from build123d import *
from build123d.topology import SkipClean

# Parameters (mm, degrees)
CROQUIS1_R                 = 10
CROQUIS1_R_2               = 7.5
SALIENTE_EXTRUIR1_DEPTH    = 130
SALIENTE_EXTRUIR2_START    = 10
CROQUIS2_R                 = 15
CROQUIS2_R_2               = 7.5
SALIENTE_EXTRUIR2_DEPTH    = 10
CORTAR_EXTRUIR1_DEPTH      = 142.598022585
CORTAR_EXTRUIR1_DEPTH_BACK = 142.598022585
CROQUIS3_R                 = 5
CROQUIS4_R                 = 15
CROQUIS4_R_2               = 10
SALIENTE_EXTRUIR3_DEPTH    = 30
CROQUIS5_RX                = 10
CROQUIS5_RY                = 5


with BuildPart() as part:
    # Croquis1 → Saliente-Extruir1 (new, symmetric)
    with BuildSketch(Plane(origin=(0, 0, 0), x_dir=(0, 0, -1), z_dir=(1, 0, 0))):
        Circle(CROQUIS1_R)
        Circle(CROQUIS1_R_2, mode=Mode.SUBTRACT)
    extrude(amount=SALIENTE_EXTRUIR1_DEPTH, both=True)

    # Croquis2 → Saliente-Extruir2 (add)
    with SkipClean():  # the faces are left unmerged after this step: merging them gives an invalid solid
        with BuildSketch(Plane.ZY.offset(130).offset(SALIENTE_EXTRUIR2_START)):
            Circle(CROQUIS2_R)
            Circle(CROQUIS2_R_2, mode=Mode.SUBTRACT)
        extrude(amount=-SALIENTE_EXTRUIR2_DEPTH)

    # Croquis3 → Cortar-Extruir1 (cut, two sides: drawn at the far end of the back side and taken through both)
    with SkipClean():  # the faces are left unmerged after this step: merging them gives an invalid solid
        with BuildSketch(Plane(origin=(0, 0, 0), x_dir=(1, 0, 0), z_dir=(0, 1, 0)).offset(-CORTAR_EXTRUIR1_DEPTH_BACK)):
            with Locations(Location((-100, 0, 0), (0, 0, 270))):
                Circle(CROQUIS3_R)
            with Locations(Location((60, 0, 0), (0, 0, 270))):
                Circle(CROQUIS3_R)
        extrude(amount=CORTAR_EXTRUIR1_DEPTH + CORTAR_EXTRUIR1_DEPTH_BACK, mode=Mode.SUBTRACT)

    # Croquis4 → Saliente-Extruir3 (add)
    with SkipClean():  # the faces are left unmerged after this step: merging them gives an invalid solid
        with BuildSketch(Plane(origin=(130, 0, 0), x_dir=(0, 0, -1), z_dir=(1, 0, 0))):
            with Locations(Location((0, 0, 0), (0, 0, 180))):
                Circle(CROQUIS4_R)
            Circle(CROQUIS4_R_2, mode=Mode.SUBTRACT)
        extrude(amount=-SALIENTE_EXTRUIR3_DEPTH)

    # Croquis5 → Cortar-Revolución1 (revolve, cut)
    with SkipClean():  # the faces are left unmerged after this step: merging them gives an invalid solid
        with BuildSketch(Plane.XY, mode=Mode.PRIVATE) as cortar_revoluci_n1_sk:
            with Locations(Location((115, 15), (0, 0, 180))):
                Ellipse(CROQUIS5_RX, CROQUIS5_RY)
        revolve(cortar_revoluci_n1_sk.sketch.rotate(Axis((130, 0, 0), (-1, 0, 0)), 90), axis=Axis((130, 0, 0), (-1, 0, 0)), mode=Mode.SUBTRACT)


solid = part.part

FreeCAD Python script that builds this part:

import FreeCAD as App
import Part
import Sketcher
from FreeCAD import Vector
Q = App.Units.Quantity

doc = App.newDocument("Part")
params = doc.addObject("Spreadsheet::Sheet", "Params")
for row, (alias, value) in enumerate([
    ("sketch1_diameter", "20 mm"),
    ("sketch1_diameter2", "15 mm"),
    ("pad1_length", "260 mm"),
    ("sketch2_diameter", "30 mm"),
    ("sketch2_diameter2", "15 mm"),
    ("pad2_length", "10 mm"),
    ("sketch3_diameter", "10 mm"),
    ("sketch4_diameter", "30 mm"),
    ("sketch4_diameter2", "20 mm"),
    ("pad3_length", "30 mm"),
    ("groove_angle", "360 deg"),
], start=1):
    params.set(f"A{row}", alias)
    params.set(f"B{row}", "=" + value)
    params.setAlias(f"B{row}", alias)

body = doc.addObject("PartDesign::Body", "Body")

# Sketch on YZ plane
sketch1 = body.newObject("Sketcher::SketchObject", "Sketch")
sketch1.AttachmentSupport = (doc.getObject("YZ_Plane"), [""])
sketch1.MapMode = "FlatFace"
sketch1.addGeometry([
    Part.Circle(Vector(0, 0, 0), Vector(0, 0, 1), 10),
    Part.Circle(Vector(0, 0, 0), Vector(0, 0, 1), 8),
], False)
sketch1.addConstraint([
    Sketcher.Constraint("Coincident", 0, 3, -1, 1),
    Sketcher.Constraint("Coincident", 1, 3, -1, 1),
    Sketcher.Constraint("Diameter", 0, Q("20 mm")),
    Sketcher.Constraint("Diameter", 1, Q("15 mm")),
])
sketch1.setExpression("Constraints[2]", "Params.sketch1_diameter")
sketch1.setExpression("Constraints[3]", "Params.sketch1_diameter2")
pad1 = body.newObject("PartDesign::Pad", "Pad")
pad1.Profile = sketch1
pad1.setExpression("Length", "Params.pad1_length")
pad1.Midplane = True

# Sketch on YZ plane
sketch2 = body.newObject("Sketcher::SketchObject", "Sketch001")
sketch2.AttachmentSupport = (doc.getObject("YZ_Plane"), [""])
sketch2.MapMode = "FlatFace"
sketch2.AttachmentOffset = App.Placement(Vector(0, 0, -140), App.Rotation())
sketch2.addGeometry([
    Part.Circle(Vector(0, 0, 0), Vector(0, 0, 1), 15),
    Part.Circle(Vector(0, 0, 0), Vector(0, 0, 1), 8),
], False)
sketch2.addConstraint([
    Sketcher.Constraint("Coincident", 0, 3, -1, 1),
    Sketcher.Constraint("Coincident", 1, 3, -1, 1),
    Sketcher.Constraint("Diameter", 0, Q("30 mm")),
    Sketcher.Constraint("Diameter", 1, Q("15 mm")),
])
sketch2.setExpression("Constraints[2]", "Params.sketch2_diameter")
sketch2.setExpression("Constraints[3]", "Params.sketch2_diameter2")
pad2 = body.newObject("PartDesign::Pad", "Pad001")
pad2.Profile = sketch2
pad2.setExpression("Length", "Params.pad2_length")

# Sketch on XZ plane
sketch3 = body.newObject("Sketcher::SketchObject", "Sketch002")
sketch3.AttachmentSupport = (doc.getObject("XZ_Plane"), [""])
sketch3.MapMode = "FlatFace"
sketch3.addGeometry([
    Part.Circle(Vector(-100, 0, 0), Vector(0, 0, 1), 5),
    Part.Circle(Vector(60, 0, 0), Vector(0, 0, 1), 5),
], False)
sketch3.addConstraint([
    Sketcher.Constraint("Equal", 0, 1),
    Sketcher.Constraint("PointOnObject", 0, 3, -1),
    Sketcher.Constraint("PointOnObject", 1, 3, -1),
    Sketcher.Constraint("Diameter", 0, Q("10 mm")),
    Sketcher.Constraint("DistanceX", 0, 3, -1, 1, Q("100 mm")),
    Sketcher.Constraint("DistanceX", -1, 1, 1, 3, Q("60 mm")),
])
sketch3.setExpression("Constraints[3]", "Params.sketch3_diameter")
pocket1 = body.newObject("PartDesign::Pocket", "Pocket")
pocket1.Profile = sketch3
pocket1.Type = "ThroughAll"
pocket1.Midplane = True

# Sketch on YZ plane
sketch4 = body.newObject("Sketcher::SketchObject", "Sketch003")
sketch4.AttachmentSupport = (doc.getObject("YZ_Plane"), [""])
sketch4.MapMode = "FlatFace"
sketch4.AttachmentOffset = App.Placement(Vector(0, 0, 130), App.Rotation())
sketch4.addGeometry([
    Part.Circle(Vector(0, 0, 0), Vector(0, 0, 1), 15),
    Part.Circle(Vector(0, 0, 0), Vector(0, 0, 1), 10),
], False)
sketch4.addConstraint([
    Sketcher.Constraint("Coincident", 0, 3, -1, 1),
    Sketcher.Constraint("Coincident", 1, 3, -1, 1),
    Sketcher.Constraint("Diameter", 0, Q("30 mm")),
    Sketcher.Constraint("Diameter", 1, Q("20 mm")),
])
sketch4.setExpression("Constraints[2]", "Params.sketch4_diameter")
sketch4.setExpression("Constraints[3]", "Params.sketch4_diameter2")
pad3 = body.newObject("PartDesign::Pad", "Pad002")
pad3.Profile = sketch4
pad3.setExpression("Length", "Params.pad3_length")
pad3.Reversed = True

# Sketch on XY plane
sketch5 = body.newObject("Sketcher::SketchObject", "Sketch004")
sketch5.AttachmentSupport = (doc.getObject("XY_Plane"), [""])
sketch5.MapMode = "FlatFace"
sketch5.addGeometry(Part.Ellipse(Vector(105, 15, 0), Vector(115, 10, 0), Vector(115, 15, 0)), False)
sketch5.addConstraint(Sketcher.Constraint("Block", 0))
groove = body.newObject("PartDesign::Groove", "Groove")
groove.Profile = sketch5
groove.ReferenceAxis = (sketch5, ["H_Axis"])
groove.setExpression("Angle", "Params.groove_angle")

doc.recompute()
